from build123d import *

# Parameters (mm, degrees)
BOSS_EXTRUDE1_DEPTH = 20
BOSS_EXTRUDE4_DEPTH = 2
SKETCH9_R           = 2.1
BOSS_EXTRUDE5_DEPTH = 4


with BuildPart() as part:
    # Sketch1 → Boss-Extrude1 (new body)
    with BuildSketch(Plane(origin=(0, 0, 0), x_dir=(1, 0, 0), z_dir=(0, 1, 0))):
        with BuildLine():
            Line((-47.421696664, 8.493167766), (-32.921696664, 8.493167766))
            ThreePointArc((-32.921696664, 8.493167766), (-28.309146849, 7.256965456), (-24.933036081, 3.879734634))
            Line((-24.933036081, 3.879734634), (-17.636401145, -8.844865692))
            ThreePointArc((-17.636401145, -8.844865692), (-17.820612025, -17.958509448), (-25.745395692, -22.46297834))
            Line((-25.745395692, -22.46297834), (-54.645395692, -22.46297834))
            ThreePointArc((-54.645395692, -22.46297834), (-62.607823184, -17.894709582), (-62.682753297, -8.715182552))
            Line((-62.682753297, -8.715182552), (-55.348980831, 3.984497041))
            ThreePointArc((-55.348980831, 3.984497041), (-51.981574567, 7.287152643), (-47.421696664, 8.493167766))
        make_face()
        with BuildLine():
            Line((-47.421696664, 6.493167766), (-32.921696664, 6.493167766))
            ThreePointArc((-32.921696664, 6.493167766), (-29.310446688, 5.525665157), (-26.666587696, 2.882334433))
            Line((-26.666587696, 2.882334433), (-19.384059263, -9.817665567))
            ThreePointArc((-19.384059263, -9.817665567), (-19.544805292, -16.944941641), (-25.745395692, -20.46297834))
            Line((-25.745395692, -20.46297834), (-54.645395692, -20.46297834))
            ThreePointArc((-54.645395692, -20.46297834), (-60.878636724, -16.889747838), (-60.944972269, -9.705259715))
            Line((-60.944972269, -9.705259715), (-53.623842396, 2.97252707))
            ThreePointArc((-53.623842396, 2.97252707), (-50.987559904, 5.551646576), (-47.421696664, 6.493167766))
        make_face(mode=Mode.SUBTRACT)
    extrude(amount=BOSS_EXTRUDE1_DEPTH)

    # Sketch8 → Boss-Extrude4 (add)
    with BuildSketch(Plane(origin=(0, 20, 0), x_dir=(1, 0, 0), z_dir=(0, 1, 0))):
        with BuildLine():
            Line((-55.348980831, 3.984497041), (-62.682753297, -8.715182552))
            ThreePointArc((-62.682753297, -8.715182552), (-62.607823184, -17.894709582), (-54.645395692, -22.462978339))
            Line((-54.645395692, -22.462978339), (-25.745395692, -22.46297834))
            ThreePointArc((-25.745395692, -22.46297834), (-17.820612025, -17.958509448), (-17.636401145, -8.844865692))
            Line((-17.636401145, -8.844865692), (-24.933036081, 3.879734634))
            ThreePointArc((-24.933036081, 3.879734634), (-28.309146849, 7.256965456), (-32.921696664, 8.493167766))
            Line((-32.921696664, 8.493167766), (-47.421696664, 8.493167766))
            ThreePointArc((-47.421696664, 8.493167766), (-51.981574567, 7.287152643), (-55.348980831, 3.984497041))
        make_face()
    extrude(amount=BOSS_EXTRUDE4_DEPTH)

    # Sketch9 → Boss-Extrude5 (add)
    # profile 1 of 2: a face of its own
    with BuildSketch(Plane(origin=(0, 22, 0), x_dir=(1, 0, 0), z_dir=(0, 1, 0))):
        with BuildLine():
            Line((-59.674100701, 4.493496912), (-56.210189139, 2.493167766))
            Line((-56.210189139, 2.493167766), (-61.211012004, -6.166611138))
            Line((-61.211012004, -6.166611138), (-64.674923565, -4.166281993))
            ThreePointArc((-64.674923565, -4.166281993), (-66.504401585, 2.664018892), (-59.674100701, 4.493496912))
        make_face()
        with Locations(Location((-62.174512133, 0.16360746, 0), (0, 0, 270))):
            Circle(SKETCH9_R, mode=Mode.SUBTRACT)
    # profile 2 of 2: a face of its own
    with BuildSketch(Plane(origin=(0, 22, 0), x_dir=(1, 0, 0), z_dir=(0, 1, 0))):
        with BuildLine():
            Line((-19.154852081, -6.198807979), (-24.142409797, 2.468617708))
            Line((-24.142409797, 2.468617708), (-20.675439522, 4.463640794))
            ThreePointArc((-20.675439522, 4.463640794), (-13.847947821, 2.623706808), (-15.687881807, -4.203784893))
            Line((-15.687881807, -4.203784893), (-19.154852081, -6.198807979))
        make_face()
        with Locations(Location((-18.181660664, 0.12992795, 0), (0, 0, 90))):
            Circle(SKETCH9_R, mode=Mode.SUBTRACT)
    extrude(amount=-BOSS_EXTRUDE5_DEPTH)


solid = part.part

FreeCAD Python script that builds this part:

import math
import FreeCAD as App
import Part
import Sketcher

V = App.Vector

doc = App.newDocument("Part")
body = doc.addObject("PartDesign::Body", "Body")

sketch1 = body.newObject("Sketcher::SketchObject", "Sketch")
sketch1.AttachmentSupport = (doc.getObject("XZ_Plane"), [""])
sketch1.MapMode = "FlatFace"
sketch1.addGeometry([
    Part.LineSegment(V(-32.921697, -8.493168, 0), V(-47.421697, -8.493168, 0)),
    Part.ArcOfCircle(Part.Circle(V(-47.421697, 0.730166, 0), V(0, 0, 1), 9.223333), math.radians(-149.258413), math.radians(-90)),
    Part.LineSegment(V(-55.348981, -3.984497, 0), V(-62.682753, 8.715183, 0)),
    Part.ArcOfCircle(Part.Circle(V(-54.645396, 13.239645, 0), V(0, 0, 1), 9.223333), math.radians(90), math.radians(209.376426)),
    Part.LineSegment(V(-54.645396, 22.462978, 0), V(-25.745396, 22.462978, 0)),
    Part.ArcOfCircle(Part.Circle(V(-25.745396, 13.239645, 0), V(0, 0, 1), 9.223333), math.radians(-28.456078), math.radians(90)),
    Part.LineSegment(V(-17.636401, 8.844866, 0), V(-24.933036, -3.879735, 0)),
    Part.ArcOfCircle(Part.Circle(V(-32.921697, 0.730166, 0), V(0, 0, 1), 9.223333), math.radians(-90), math.radians(-29.98733)),
    Part.LineSegment(V(-47.421697, -6.493168, 0), V(-32.921697, -6.493168, 0)),
    Part.ArcOfCircle(Part.Circle(V(-32.921697, 0.730166, 0), V(0, 0, 1), 7.223333), math.radians(-90), math.radians(-30.007633)),
    Part.LineSegment(V(-26.666588, -2.882334, 0), V(-19.384059, 9.817666, 0)),
    Part.ArcOfCircle(Part.Circle(V(-25.745396, 13.239645, 0), V(0, 0, 1), 7.223333), math.radians(-28.277321), math.radians(90)),
    Part.LineSegment(V(-25.745396, 20.462978, 0), V(-54.645396, 20.462978, 0)),
    Part.ArcOfCircle(Part.Circle(V(-54.645396, 13.239645, 0), V(0, 0, 1), 7.223333), math.radians(90), math.radians(209.294658)),
    Part.LineSegment(V(-60.944972, 9.70526, 0), V(-53.623842, -2.972527, 0)),
    Part.ArcOfCircle(Part.Circle(V(-47.421697, 0.730166, 0), V(0, 0, 1), 7.223333), math.radians(-149.162719), math.radians(-90)),
], False)
sketch1.addConstraint([
    Sketcher.Constraint("Tangent", 0, 2, 1, 2),
    Sketcher.Constraint("Coincident", 1, 1, 2, 1),
    Sketcher.Constraint("Coincident", 2, 2, 3, 2),
    Sketcher.Constraint("Tangent", 3, 1, 4, 1),
    Sketcher.Constraint("Tangent", 4, 2, 5, 2),
    Sketcher.Constraint("Coincident", 5, 1, 6, 1),
    Sketcher.Constraint("Coincident", 6, 2, 7, 2),
    Sketcher.Constraint("Tangent", 7, 1, 0, 1),
    Sketcher.Constraint("Tangent", 8, 2, 9, 1),
    Sketcher.Constraint("Coincident", 9, 2, 10, 1),
    Sketcher.Constraint("Coincident", 10, 2, 11, 1),
    Sketcher.Constraint("Tangent", 11, 2, 12, 1),
    Sketcher.Constraint("Tangent", 12, 2, 13, 1),
    Sketcher.Constraint("Coincident", 13, 2, 14, 1),
    Sketcher.Constraint("Coincident", 14, 2, 15, 1),
    Sketcher.Constraint("Tangent", 15, 2, 8, 1),
    Sketcher.Constraint("Horizontal", 0),
    Sketcher.Constraint("Horizontal", 4),
    Sketcher.Constraint("Horizontal", 8),
    Sketcher.Constraint("Horizontal", 12),
    Sketcher.Constraint("Coincident", 9, 3, 7, 3),
    Sketcher.Constraint("Coincident", 11, 3, 5, 3),
    Sketcher.Constraint("Coincident", 13, 3, 3, 3),
    Sketcher.Constraint("Coincident", 15, 3, 1, 3),
    Sketcher.Constraint("Equal", 1, 3),
    Sketcher.Constraint("Equal", 3, 5),
    Sketcher.Constraint("Equal", 5, 7),
    Sketcher.Constraint("Equal", 9, 11),
    Sketcher.Constraint("Parallel", 6, 10),
    Sketcher.Constraint("Parallel", 2, 14),
    Sketcher.Constraint("Equal", 10, 14),
    Sketcher.Constraint("DistanceX", 0, 2, 0, 1, 14.5),
    Sketcher.Constraint("DistanceX", 4, 1, 4, 2, 28.9),
    Sketcher.Constraint("DistanceY", 7, 1, 8, 2, 2.0),
    Sketcher.Constraint("DistanceY", 9, 2, 10, 2, 12.7),
    Sketcher.Constraint("Radius", 1, 9.223333),
    Sketcher.Constraint("DistanceX", 5, 1, -1, 1, 17.636401),
    Sketcher.Constraint("DistanceX", 3, 3, 1, 3, 7.223699),
    Sketcher.Constraint("DistanceY", 9, 3, 5, 1, 8.1147),
    Sketcher.Constraint("DistanceY", 6, 2, 7, 3, 4.6099),
    Sketcher.Constraint("DistanceY", 6, 2, 9, 2, 0.9974),
    Sketcher.Constraint("Distance", 2, 14.665131),
    Sketcher.Constraint("DistanceX", 1, 1, -1, 1, 55.348981),
    Sketcher.Constraint("DistanceY", -1, 1, 3, 1, 22.462978),
])
pad1 = body.newObject("PartDesign::Pad", "Pad")
pad1.Profile = sketch1
pad1.Length = 20
pad1.Reversed = True

sketch2 = body.newObject("Sketcher::SketchObject", "Sketch001")
sketch2.AttachmentSupport = (doc.getObject("XZ_Plane"), [""])
sketch2.MapMode = "FlatFace"
sketch2.AttachmentOffset = App.Placement(V(0, 0, -20), App.Rotation())
sketch2.addGeometry([
    Part.LineSegment(V(-55.348981, -3.984497, 0), V(-62.682753, 8.715183, 0)),
    Part.ArcOfCircle(Part.Circle(V(-54.645396, 13.239645, 0), V(0, 0, 1), 9.223333), math.radians(90), math.radians(209.376426)),
    Part.LineSegment(V(-54.645396, 22.462978, 0), V(-25.745396, 22.462978, 0)),
    Part.ArcOfCircle(Part.Circle(V(-25.745396, 13.239645, 0), V(0, 0, 1), 9.223333), math.radians(-28.456078), math.radians(90)),
    Part.LineSegment(V(-17.636401, 8.844866, 0), V(-24.933036, -3.879735, 0)),
    Part.ArcOfCircle(Part.Circle(V(-32.921697, 0.730166, 0), V(0, 0, 1), 9.223333), math.radians(-90), math.radians(-29.98733)),
    Part.LineSegment(V(-32.921697, -8.493168, 0), V(-47.421697, -8.493168, 0)),
    Part.ArcOfCircle(Part.Circle(V(-47.421697, 0.730166, 0), V(0, 0, 1), 9.223333), math.radians(-149.258413), math.radians(-90)),
], False)
sketch2.addConstraint([
    Sketcher.Constraint("Coincident", 0, 2, 1, 2),
    Sketcher.Constraint("Tangent", 1, 1, 2, 1),
    Sketcher.Constraint("Tangent", 2, 2, 3, 2),
    Sketcher.Constraint("Coincident", 3, 1, 4, 1),
    Sketcher.Constraint("Coincident", 4, 2, 5, 2),
    Sketcher.Constraint("Tangent", 5, 1, 6, 1),
    Sketcher.Constraint("Tangent", 6, 2, 7, 2),
    Sketcher.Constraint("Coincident", 7, 1, 0, 1),
    Sketcher.Constraint("Horizontal", 2),
    Sketcher.Constraint("Horizontal", 6),
    Sketcher.Constraint("Equal", 1, 3),
    Sketcher.Constraint("Equal", 3, 5),
    Sketcher.Constraint("Equal", 5, 7),
    Sketcher.Constraint("DistanceX", 2, 1, 2, 2, 28.9),
    Sketcher.Constraint("DistanceX", 6, 2, 6, 1, 14.5),
    Sketcher.Constraint("Radius", 1, 9.223333),
    Sketcher.Constraint("DistanceX", 3, 1, -1, 1, 17.636401),
    Sketcher.Constraint("DistanceX", 5, 3, 3, 3, 7.176301),
    Sketcher.Constraint("DistanceY", 5, 3, 3, 1, 8.1147),
    Sketcher.Constraint("DistanceY", 4, 2, 5, 3, 4.6099),
    Sketcher.Constraint("Distance", 0, 14.665131),
    Sketcher.Constraint("Distance", 4, 14.668208),
    Sketcher.Constraint("DistanceY", -1, 1, 1, 1, 22.462978),
    Sketcher.Constraint("DistanceX", 7, 1, -1, 1, 55.348981),
])
pad2 = body.newObject("PartDesign::Pad", "Pad001")
pad2.Profile = sketch2
pad2.Length = 2
pad2.Reversed = True

sketch3 = body.newObject("Sketcher::SketchObject", "Sketch002")
sketch3.AttachmentSupport = (doc.getObject("XZ_Plane"), [""])
sketch3.MapMode = "FlatFace"
sketch3.AttachmentOffset = App.Placement(V(0, 0, -22), App.Rotation())
sketch3.addGeometry([
    Part.LineSegment(V(-56.210189, -2.493168, 0), V(-59.674101, -4.493497, 0)),
    Part.ArcOfCircle(Part.Circle(V(-62.174512, -0.163607, 0), V(0, 0, 1), 5), math.radians(120.005444), math.radians(300.005444)),
    Part.LineSegment(V(-64.674924, 4.166282, 0), V(-61.211012, 6.166611, 0)),
    Part.LineSegment(V(-61.211012, 6.166611, 0), V(-56.210189, -2.493168, 0)),
    Part.Circle(V(-62.174512, -0.163607, 0), V(0, 0, 1), 2.1),
    Part.LineSegment(V(-24.14241, -2.468618, 0), V(-19.154852, 6.198808, 0)),
    Part.LineSegment(V(-19.154852, 6.198808, 0), V(-15.687882, 4.203785, 0)),
    Part.ArcOfCircle(Part.Circle(V(-18.181661, -0.129928, 0), V(0, 0, 1), 5), math.radians(-119.917717), math.radians(60.082283)),
    Part.LineSegment(V(-20.67544, -4.463641, 0), V(-24.14241, -2.468618, 0)),
    Part.Circle(V(-18.181661, -0.129928, 0), V(0, 0, 1), 2.1),
], False)
sketch3.addConstraint([
    Sketcher.Constraint("Tangent", 0, 2, 1, 2),
    Sketcher.Constraint("Tangent", 1, 1, 2, 1),
    Sketcher.Constraint("Coincident", 2, 2, 3, 1),
    Sketcher.Constraint("Coincident", 3, 2, 0, 1),
    Sketcher.Constraint("Coincident", 5, 2, 6, 1),
    Sketcher.Constraint("Tangent", 6, 2, 7, 2),
    Sketcher.Constraint("Tangent", 7, 1, 8, 1),
    Sketcher.Constraint("Coincident", 8, 2, 5, 1),
    Sketcher.Constraint("Coincident", 4, 3, 1, 3),
    Sketcher.Constraint("Coincident", 9, 3, 7, 3),
    Sketcher.Constraint("Equal", 1, 7),
    Sketcher.Constraint("Equal", 4, 9),
    Sketcher.Constraint("Parallel", 0, 2),
    Sketcher.Constraint("Perpendicular", 2, 3),
    Sketcher.Constraint("Perpendicular", 5, 6),
    Sketcher.Constraint("Parallel", 6, 8),
    Sketcher.Constraint("Equal", 2, 6),
    Sketcher.Constraint("Radius", 1, 5.0),
    Sketcher.Constraint("Diameter", 4, 4.2),
    Sketcher.Constraint("Distance", 0, 4.0),
    Sketcher.Constraint("DistanceX", 0, 2, -1, 1, 59.674101),
    Sketcher.Constraint("DistanceX", 1, 3, 2, 2, 0.9635),
    Sketcher.Constraint("DistanceX", 7, 3, -1, 1, 18.181661),
    Sketcher.Constraint("DistanceY", -1, 1, 1, 1, 4.166282),
    Sketcher.Constraint("DistanceX", 6, 2, -1, 1, 15.687882),
    Sketcher.Constraint("DistanceY", 7, 1, -1, 1, 4.463641),
])
pad3 = body.newObject("PartDesign::Pad", "Pad002")
pad3.Profile = sketch3
pad3.Length = 4

doc.recompute()
